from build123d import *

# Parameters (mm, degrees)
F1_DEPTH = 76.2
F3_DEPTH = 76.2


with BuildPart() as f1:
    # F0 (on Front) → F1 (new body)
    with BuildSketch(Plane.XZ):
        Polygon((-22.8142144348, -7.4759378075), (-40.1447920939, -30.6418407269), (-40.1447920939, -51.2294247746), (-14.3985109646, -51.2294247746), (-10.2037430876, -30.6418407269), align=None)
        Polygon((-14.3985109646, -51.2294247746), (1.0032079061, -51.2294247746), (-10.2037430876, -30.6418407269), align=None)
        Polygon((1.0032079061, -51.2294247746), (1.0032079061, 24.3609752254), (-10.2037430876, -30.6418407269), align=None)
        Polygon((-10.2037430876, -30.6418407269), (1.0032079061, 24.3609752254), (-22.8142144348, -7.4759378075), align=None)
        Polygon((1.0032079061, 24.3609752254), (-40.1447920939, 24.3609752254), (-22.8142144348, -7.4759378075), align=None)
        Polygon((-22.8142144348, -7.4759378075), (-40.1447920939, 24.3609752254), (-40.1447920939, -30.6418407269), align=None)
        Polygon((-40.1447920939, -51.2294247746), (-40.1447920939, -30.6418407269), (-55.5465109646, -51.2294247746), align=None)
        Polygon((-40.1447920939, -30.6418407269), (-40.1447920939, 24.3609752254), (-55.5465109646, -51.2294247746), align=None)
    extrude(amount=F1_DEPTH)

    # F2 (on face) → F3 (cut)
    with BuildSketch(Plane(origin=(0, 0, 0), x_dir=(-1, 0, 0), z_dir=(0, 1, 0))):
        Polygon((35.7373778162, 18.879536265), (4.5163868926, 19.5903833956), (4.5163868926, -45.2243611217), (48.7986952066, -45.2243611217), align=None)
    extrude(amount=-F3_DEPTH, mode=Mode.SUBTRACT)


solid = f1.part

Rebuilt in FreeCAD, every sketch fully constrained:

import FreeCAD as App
import Part
import Sketcher

V = App.Vector
Q = App.Units.Quantity


def add_polygon(sketch, points):
    """Adds a closed chain of lines whose ends are joined by coincident constraints."""
    first, n = sketch.GeometryCount, len(points)
    for a, b in zip(points, points[1:] + points[:1]):
        sketch.addGeometry(Part.LineSegment(App.Vector(*a, 0), App.Vector(*b, 0)), False)
    for i in range(n):
        sketch.addConstraint(Sketcher.Constraint("Coincident", first + i, 2, first + (i + 1) % n, 1))

doc = App.newDocument("Part")
params = doc.addObject("Spreadsheet::Sheet", "Params")
for row, (alias, value) in enumerate([
    ("sketch1_width", "1.62 in"),
    ("sketch1_height", "2.976 in"),
    ("pad1_length", "3 in"),
    ("pocket1_length", "3 in"),
], start=1):
    params.set(f"A{row}", alias)
    params.set(f"B{row}", "=" + value)
    params.setAlias(f"B{row}", alias)

body = doc.addObject("PartDesign::Body", "Body")

sketch1 = doc.addObject("Sketcher::SketchObject", "Sketch")
body.addObject(sketch1)
sketch1.AttachmentSupport = (doc.XZ_Plane, [""])
sketch1.MapMode = "FlatFace"
add_polygon(sketch1, [(1, -51), (1, 24), (-40, 24), (-56, -51)])
sketch1.addConstraint(Sketcher.Constraint("Vertical", 0))
sketch1.addConstraint(Sketcher.Constraint("Horizontal", 1))
sketch1.addConstraint(Sketcher.Constraint("Horizontal", 3))
sketch1.addConstraint(Sketcher.Constraint("DistanceX", 1, 2, 1, 1, Q("1.62 in")))
sketch1.addConstraint(Sketcher.Constraint("DistanceY", 0, 1, 0, 2, Q("2.976 in")))
sketch1.addConstraint(Sketcher.Constraint("DistanceX", 3, 1, 3, 2, 56.549719))
sketch1.addConstraint(Sketcher.Constraint("DistanceX", 2, 2, -1, 1, 55.546511))
sketch1.addConstraint(Sketcher.Constraint("DistanceY", -1, 1, 0, 2, 24.360975))
sketch1.setExpression("Constraints[7]", "Params.sketch1_width")
sketch1.setExpression("Constraints[8]", "Params.sketch1_height")
pad1 = doc.addObject("PartDesign::Pad", "Pad")
body.addObject(pad1)
pad1.Profile = sketch1
pad1.setExpression("Length", "Params.pad1_length")

sketch2 = doc.addObject("Sketcher::SketchObject", "Sketch001")
body.addObject(sketch2)
sketch2.AttachmentSupport = (doc.XZ_Plane, [""])
sketch2.MapMode = "FlatFace"
add_polygon(sketch2, [(-36, 19), (-5, 20), (-5, -45), (-49, -45)])
sketch2.addConstraint(Sketcher.Constraint("Vertical", 1))
sketch2.addConstraint(Sketcher.Constraint("Horizontal", 2))
sketch2.addConstraint(Sketcher.Constraint("DistanceX", 2, 2, 2, 1, 44.282308))
sketch2.addConstraint(Sketcher.Constraint("DistanceY", 1, 2, 1, 1, 64.814745))
sketch2.addConstraint(Sketcher.Constraint("DistanceY", 1, 2, -1, 1, 45.224361))
sketch2.addConstraint(Sketcher.Constraint("DistanceX", 3, 2, 0, 2, 31.220991))
sketch2.addConstraint(Sketcher.Constraint("Distance", 0, 31.229082))
sketch2.addConstraint(Sketcher.Constraint("DistanceX", 0, 2, -1, 1, 4.516387))
pocket1 = doc.addObject("PartDesign::Pocket", "Pocket")
body.addObject(pocket1)
pocket1.Profile = sketch2
pocket1.setExpression("Length", "Params.pocket1_length")
pocket1.Reversed = True

doc.recompute()
